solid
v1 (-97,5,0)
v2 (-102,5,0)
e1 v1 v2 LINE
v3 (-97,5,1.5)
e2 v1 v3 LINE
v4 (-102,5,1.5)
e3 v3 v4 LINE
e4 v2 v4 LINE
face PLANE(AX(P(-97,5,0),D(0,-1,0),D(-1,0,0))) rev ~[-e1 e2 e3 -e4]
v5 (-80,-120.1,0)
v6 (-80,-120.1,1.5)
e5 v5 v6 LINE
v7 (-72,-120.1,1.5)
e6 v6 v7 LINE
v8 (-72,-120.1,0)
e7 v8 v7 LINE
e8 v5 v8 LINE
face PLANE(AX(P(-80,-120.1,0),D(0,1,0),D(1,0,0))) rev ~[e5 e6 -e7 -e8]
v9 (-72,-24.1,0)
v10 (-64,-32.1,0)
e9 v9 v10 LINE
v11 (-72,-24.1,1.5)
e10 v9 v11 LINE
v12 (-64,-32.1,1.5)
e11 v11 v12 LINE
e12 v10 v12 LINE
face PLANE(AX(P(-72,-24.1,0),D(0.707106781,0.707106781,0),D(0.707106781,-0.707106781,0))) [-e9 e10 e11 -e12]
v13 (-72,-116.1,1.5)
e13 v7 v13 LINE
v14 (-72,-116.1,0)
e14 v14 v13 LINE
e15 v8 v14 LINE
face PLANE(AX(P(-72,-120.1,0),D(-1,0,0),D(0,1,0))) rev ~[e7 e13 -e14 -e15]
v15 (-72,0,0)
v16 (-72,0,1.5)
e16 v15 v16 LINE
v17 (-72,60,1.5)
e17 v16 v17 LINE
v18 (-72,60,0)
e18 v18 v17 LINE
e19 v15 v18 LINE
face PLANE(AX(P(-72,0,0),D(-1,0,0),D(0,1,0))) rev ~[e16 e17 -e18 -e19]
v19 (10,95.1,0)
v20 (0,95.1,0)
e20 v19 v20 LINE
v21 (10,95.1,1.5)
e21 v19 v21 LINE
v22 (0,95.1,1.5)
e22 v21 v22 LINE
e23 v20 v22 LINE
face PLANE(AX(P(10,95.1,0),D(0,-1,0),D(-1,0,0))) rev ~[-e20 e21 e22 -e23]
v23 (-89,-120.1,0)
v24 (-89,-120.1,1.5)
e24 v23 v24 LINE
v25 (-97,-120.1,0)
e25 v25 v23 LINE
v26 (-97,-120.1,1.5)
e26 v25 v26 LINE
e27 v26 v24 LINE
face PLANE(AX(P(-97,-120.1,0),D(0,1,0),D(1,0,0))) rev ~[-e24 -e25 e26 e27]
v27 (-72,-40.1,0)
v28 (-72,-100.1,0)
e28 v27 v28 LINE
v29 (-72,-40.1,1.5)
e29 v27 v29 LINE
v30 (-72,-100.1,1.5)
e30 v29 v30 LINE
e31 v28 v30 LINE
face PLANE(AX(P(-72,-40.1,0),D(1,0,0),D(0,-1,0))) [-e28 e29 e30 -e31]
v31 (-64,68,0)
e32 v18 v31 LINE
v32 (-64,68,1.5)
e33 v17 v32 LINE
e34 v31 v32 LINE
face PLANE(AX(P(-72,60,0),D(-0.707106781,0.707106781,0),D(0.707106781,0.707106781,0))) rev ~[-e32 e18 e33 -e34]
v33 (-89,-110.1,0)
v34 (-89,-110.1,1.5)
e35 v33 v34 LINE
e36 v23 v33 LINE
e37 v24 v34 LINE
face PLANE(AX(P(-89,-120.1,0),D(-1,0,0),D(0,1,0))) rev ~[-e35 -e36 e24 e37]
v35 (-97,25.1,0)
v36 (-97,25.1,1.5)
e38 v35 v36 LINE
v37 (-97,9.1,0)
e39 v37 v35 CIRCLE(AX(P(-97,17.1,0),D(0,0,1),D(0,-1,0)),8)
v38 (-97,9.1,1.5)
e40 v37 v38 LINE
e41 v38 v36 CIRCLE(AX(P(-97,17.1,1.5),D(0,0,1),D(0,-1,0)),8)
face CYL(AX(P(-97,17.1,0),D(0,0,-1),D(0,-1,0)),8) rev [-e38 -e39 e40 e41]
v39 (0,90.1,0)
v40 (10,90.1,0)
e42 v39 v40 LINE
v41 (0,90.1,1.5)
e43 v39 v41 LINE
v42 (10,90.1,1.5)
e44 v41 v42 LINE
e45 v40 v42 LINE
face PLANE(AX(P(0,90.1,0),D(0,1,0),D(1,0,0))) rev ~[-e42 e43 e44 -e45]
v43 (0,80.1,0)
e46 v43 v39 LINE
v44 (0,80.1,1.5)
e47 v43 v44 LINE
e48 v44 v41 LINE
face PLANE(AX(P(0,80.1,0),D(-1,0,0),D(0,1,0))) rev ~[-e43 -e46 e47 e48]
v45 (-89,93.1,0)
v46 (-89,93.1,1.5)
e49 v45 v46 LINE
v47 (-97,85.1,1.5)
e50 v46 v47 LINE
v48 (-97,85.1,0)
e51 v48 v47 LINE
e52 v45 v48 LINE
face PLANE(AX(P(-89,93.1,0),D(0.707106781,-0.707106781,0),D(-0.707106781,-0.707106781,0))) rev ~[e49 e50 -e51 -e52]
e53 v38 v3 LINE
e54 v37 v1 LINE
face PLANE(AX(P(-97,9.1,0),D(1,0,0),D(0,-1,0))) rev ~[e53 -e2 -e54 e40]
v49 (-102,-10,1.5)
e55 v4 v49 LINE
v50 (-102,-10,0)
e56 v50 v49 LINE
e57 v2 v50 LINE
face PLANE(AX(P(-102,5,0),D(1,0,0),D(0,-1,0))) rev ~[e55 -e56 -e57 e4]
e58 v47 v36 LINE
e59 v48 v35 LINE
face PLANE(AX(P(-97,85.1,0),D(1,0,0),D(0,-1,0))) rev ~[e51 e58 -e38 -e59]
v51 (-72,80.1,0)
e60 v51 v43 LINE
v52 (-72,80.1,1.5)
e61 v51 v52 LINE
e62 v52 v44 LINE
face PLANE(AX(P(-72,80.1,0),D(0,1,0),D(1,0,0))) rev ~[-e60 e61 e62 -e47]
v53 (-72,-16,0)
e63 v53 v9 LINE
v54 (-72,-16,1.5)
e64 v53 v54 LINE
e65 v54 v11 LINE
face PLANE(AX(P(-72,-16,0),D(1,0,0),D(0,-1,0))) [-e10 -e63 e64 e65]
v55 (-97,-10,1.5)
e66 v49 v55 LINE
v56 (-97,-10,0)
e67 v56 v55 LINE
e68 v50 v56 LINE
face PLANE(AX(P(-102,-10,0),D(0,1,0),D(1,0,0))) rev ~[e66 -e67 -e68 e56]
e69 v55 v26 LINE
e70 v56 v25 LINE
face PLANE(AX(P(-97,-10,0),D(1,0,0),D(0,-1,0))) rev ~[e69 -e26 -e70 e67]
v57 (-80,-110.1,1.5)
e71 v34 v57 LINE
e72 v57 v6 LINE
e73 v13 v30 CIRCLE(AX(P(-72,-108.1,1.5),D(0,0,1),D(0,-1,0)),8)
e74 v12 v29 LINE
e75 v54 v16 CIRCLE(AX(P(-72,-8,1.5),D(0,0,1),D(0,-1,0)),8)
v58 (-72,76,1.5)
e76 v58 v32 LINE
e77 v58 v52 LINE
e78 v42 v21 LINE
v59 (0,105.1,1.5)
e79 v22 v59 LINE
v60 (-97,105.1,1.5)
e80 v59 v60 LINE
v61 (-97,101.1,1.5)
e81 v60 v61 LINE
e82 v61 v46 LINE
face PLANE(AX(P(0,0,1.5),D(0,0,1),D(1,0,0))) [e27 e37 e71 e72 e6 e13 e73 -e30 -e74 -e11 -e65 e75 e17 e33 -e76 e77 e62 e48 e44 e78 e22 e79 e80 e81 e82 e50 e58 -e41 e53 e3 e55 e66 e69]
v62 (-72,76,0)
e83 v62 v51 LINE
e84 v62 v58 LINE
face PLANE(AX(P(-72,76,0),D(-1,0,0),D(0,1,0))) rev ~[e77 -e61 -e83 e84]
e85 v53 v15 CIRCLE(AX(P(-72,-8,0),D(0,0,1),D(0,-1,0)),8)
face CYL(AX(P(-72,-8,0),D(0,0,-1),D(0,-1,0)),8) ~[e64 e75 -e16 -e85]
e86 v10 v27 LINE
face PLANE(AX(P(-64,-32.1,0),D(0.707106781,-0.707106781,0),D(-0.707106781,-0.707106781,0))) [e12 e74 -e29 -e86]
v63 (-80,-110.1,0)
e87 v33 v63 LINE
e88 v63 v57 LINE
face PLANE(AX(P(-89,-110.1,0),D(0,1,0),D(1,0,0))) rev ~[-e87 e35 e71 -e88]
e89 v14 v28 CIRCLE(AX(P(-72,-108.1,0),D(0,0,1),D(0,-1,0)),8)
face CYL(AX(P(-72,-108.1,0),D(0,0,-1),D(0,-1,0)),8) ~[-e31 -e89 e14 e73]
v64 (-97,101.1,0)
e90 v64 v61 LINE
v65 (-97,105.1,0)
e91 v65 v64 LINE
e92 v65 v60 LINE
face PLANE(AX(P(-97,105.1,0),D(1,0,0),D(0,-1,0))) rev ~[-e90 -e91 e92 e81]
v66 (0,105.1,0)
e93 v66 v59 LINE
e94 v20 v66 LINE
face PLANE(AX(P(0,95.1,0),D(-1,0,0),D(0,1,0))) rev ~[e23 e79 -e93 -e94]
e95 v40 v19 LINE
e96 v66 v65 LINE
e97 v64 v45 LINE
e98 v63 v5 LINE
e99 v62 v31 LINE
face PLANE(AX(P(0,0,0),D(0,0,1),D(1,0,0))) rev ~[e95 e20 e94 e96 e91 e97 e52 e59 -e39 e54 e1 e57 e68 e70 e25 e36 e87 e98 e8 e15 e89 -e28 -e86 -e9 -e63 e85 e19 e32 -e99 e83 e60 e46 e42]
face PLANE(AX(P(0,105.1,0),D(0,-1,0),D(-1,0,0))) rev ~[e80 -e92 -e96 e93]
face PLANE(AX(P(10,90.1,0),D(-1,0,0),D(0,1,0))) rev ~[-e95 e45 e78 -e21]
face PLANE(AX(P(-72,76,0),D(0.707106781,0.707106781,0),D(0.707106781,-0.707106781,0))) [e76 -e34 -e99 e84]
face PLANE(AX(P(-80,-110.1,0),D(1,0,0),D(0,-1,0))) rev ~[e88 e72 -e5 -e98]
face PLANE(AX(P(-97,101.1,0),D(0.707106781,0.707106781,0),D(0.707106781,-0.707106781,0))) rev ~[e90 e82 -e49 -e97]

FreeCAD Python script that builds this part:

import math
import FreeCAD as App
import Part
import Sketcher

V = App.Vector
Q = App.Units.Quantity

doc = App.newDocument("Part")
body = doc.addObject("PartDesign::Body", "Body")

sketch1 = body.newObject("Sketcher::SketchObject", "Sketch")
sketch1.AttachmentSupport = (doc.getObject("XY_Plane"), [""])
sketch1.MapMode = "FlatFace"
sketch1.addGeometry(Part.LineSegment(V(-64, 68, 0), V(-72, 76, 0)), False)
sketch1.addGeometry(Part.LineSegment(V(-72, 76, 0), V(-72, 80.1, 0)), False)
sketch1.addGeometry(Part.LineSegment(V(-72, 80.1, 0), V(0, 80.1, 0)), False)
sketch1.addGeometry(Part.LineSegment(V(0, 80.1, 0), V(0, 90.1, 0)), False)
sketch1.addGeometry(Part.LineSegment(V(0, 90.1, 0), V(10, 90.1, 0)), False)
sketch1.addGeometry(Part.LineSegment(V(10, 90.1, 0), V(10, 95.1, 0)), False)
sketch1.addGeometry(Part.LineSegment(V(10, 95.1, 0), V(0, 95.1, 0)), False)
sketch1.addGeometry(Part.LineSegment(V(0, 95.1, 0), V(0, 105.1, 0)), False)
sketch1.addGeometry(Part.LineSegment(V(0, 105.1, 0), V(-97, 105.1, 0)), False)
sketch1.addGeometry(Part.LineSegment(V(-97, 105.1, 0), V(-97, 101.1, 0)), False)
sketch1.addGeometry(Part.LineSegment(V(-97, 101.1, 0), V(-89, 93.1, 0)), False)
sketch1.addGeometry(Part.LineSegment(V(-89, 93.1, 0), V(-97, 85.1, 0)), False)
sketch1.addGeometry(Part.LineSegment(V(-97, 85.1, 0), V(-97, 25.1, 0)), False)
sketch1.addGeometry(Part.ArcOfCircle(Part.Circle(V(-97, 17.1, 0), V(0, 0, 1), 8), math.radians(-90), math.radians(90)), False)
sketch1.addGeometry(Part.LineSegment(V(-97, 9.1, 0), V(-97, 5, 0)), False)
sketch1.addGeometry(Part.LineSegment(V(-97, 5, 0), V(-102, 5, 0)), False)
sketch1.addGeometry(Part.LineSegment(V(-102, 5, 0), V(-102, -10, 0)), False)
sketch1.addGeometry(Part.LineSegment(V(-102, -10, 0), V(-97, -10, 0)), False)
sketch1.addGeometry(Part.LineSegment(V(-97, -10, 0), V(-97, -120.1, 0)), False)
sketch1.addGeometry(Part.LineSegment(V(-97, -120.1, 0), V(-89, -120.1, 0)), False)
sketch1.addGeometry(Part.LineSegment(V(-89, -120.1, 0), V(-89, -110.1, 0)), False)
sketch1.addGeometry(Part.LineSegment(V(-89, -110.1, 0), V(-80, -110.1, 0)), False)
sketch1.addGeometry(Part.LineSegment(V(-80, -110.1, 0), V(-80, -120.1, 0)), False)
sketch1.addGeometry(Part.LineSegment(V(-80, -120.1, 0), V(-72, -120.1, 0)), False)
sketch1.addGeometry(Part.LineSegment(V(-72, -120.1, 0), V(-72, -116.1, 0)), False)
sketch1.addGeometry(Part.ArcOfCircle(Part.Circle(V(-72, -108.1, 0), V(0, 0, 1), 8), math.radians(-90), math.radians(90)), False)
sketch1.addGeometry(Part.LineSegment(V(-72, -100.1, 0), V(-72, -40.1, 0)), False)
sketch1.addGeometry(Part.LineSegment(V(-72, -40.1, 0), V(-64, -32.1, 0)), False)
sketch1.addGeometry(Part.LineSegment(V(-64, -32.1, 0), V(-72, -24.1, 0)), False)
sketch1.addGeometry(Part.LineSegment(V(-72, -24.1, 0), V(-72, -16, 0)), False)
sketch1.addGeometry(Part.ArcOfCircle(Part.Circle(V(-72, -8, 0), V(0, 0, 1), 8), math.radians(-90), math.radians(90)), False)
sketch1.addGeometry(Part.LineSegment(V(-72, 0, 0), V(-72, 60, 0)), False)
sketch1.addGeometry(Part.LineSegment(V(-72, 60, 0), V(-64, 68, 0)), False)
sketch1.addConstraint(Sketcher.Constraint("Coincident", 0, 2, 1, 1))
sketch1.addConstraint(Sketcher.Constraint("Coincident", 1, 2, 2, 1))
sketch1.addConstraint(Sketcher.Constraint("Coincident", 2, 2, 3, 1))
sketch1.addConstraint(Sketcher.Constraint("Coincident", 3, 2, 4, 1))
sketch1.addConstraint(Sketcher.Constraint("Coincident", 4, 2, 5, 1))
sketch1.addConstraint(Sketcher.Constraint("Coincident", 5, 2, 6, 1))
sketch1.addConstraint(Sketcher.Constraint("Coincident", 6, 2, 7, 1))
sketch1.addConstraint(Sketcher.Constraint("Coincident", 7, 2, 8, 1))
sketch1.addConstraint(Sketcher.Constraint("Coincident", 8, 2, 9, 1))
sketch1.addConstraint(Sketcher.Constraint("Coincident", 9, 2, 10, 1))
sketch1.addConstraint(Sketcher.Constraint("Coincident", 10, 2, 11, 1))
sketch1.addConstraint(Sketcher.Constraint("Coincident", 11, 2, 12, 1))
sketch1.addConstraint(Sketcher.Constraint("Coincident", 12, 2, 13, 2))
sketch1.addConstraint(Sketcher.Constraint("Coincident", 13, 1, 14, 1))
sketch1.addConstraint(Sketcher.Constraint("Coincident", 14, 2, 15, 1))
sketch1.addConstraint(Sketcher.Constraint("Coincident", 15, 2, 16, 1))
sketch1.addConstraint(Sketcher.Constraint("Coincident", 16, 2, 17, 1))
sketch1.addConstraint(Sketcher.Constraint("Coincident", 17, 2, 18, 1))
sketch1.addConstraint(Sketcher.Constraint("Coincident", 18, 2, 19, 1))
sketch1.addConstraint(Sketcher.Constraint("Coincident", 19, 2, 20, 1))
sketch1.addConstraint(Sketcher.Constraint("Coincident", 20, 2, 21, 1))
sketch1.addConstraint(Sketcher.Constraint("Coincident", 21, 2, 22, 1))
sketch1.addConstraint(Sketcher.Constraint("Coincident", 22, 2, 23, 1))
sketch1.addConstraint(Sketcher.Constraint("Coincident", 23, 2, 24, 1))
sketch1.addConstraint(Sketcher.Constraint("Coincident", 24, 2, 25, 1))
sketch1.addConstraint(Sketcher.Constraint("Coincident", 25, 2, 26, 1))
sketch1.addConstraint(Sketcher.Constraint("Coincident", 26, 2, 27, 1))
sketch1.addConstraint(Sketcher.Constraint("Coincident", 27, 2, 28, 1))
sketch1.addConstraint(Sketcher.Constraint("Coincident", 28, 2, 29, 1))
sketch1.addConstraint(Sketcher.Constraint("Coincident", 29, 2, 30, 1))
sketch1.addConstraint(Sketcher.Constraint("Coincident", 30, 2, 31, 1))
sketch1.addConstraint(Sketcher.Constraint("Coincident", 31, 2, 32, 1))
sketch1.addConstraint(Sketcher.Constraint("Coincident", 32, 2, 0, 1))
sketch1.addConstraint(Sketcher.Constraint("Vertical", 1))
sketch1.addConstraint(Sketcher.Constraint("Horizontal", 2))
sketch1.addConstraint(Sketcher.Constraint("Vertical", 3))
sketch1.addConstraint(Sketcher.Constraint("Horizontal", 4))
sketch1.addConstraint(Sketcher.Constraint("Vertical", 5))
sketch1.addConstraint(Sketcher.Constraint("Horizontal", 6))
sketch1.addConstraint(Sketcher.Constraint("Vertical", 7))
sketch1.addConstraint(Sketcher.Constraint("Horizontal", 8))
sketch1.addConstraint(Sketcher.Constraint("Vertical", 9))
sketch1.addConstraint(Sketcher.Constraint("Vertical", 12))
sketch1.addConstraint(Sketcher.Constraint("Vertical", 14))
sketch1.addConstraint(Sketcher.Constraint("Horizontal", 15))
sketch1.addConstraint(Sketcher.Constraint("Vertical", 16))
sketch1.addConstraint(Sketcher.Constraint("Horizontal", 17))
sketch1.addConstraint(Sketcher.Constraint("Vertical", 18))
sketch1.addConstraint(Sketcher.Constraint("Horizontal", 19))
sketch1.addConstraint(Sketcher.Constraint("Vertical", 20))
sketch1.addConstraint(Sketcher.Constraint("Horizontal", 21))
sketch1.addConstraint(Sketcher.Constraint("Vertical", 22))
sketch1.addConstraint(Sketcher.Constraint("Horizontal", 23))
sketch1.addConstraint(Sketcher.Constraint("Vertical", 24))
sketch1.addConstraint(Sketcher.Constraint("Vertical", 26))
sketch1.addConstraint(Sketcher.Constraint("Vertical", 29))
sketch1.addConstraint(Sketcher.Constraint("Vertical", 31))
sketch1.addConstraint(Sketcher.Constraint("Equal", 13, 25))
sketch1.addConstraint(Sketcher.Constraint("Equal", 25, 30))
sketch1.addConstraint(Sketcher.Constraint("PointOnObject", 2, 2, -2))
sketch1.addConstraint(Sketcher.Constraint("PointOnObject", 6, 2, -2))
sketch1.addConstraint(Sketcher.Constraint("PointOnObject", 30, 2, -1))
sketch1.addConstraint(Sketcher.Constraint("Parallel", 0, 10))
sketch1.addConstraint(Sketcher.Constraint("Perpendicular", 10, 11))
sketch1.addConstraint(Sketcher.Constraint("Parallel", 11, 27))
sketch1.addConstraint(Sketcher.Constraint("Perpendicular", 27, 28))
sketch1.addConstraint(Sketcher.Constraint("Perpendicular", 28, 32))
sketch1.addConstraint(Sketcher.Constraint("Horizontal", 19, 2, 22, 2))
sketch1.addConstraint(Sketcher.Constraint("Vertical", 25, 3, 30, 3))
sketch1.addConstraint(Sketcher.Constraint("Vertical", 30, 3, 0, 2))
sketch1.addConstraint(Sketcher.Constraint("Vertical", 13, 3, 8, 2))
sketch1.addConstraint(Sketcher.Constraint("Vertical", 9, 2, 11, 2))
sketch1.addConstraint(Sketcher.Constraint("Vertical", 12, 2, 13, 1))
sketch1.addConstraint(Sketcher.Constraint("Vertical", 14, 2, 17, 2))
sketch1.addConstraint(Sketcher.Constraint("Vertical", 10, 2, 19, 2))
sketch1.addConstraint(Sketcher.Constraint("Vertical", 1, 2, 23, 2))
sketch1.addConstraint(Sketcher.Constraint("Vertical", 24, 2, 25, 2))
sketch1.addConstraint(Sketcher.Constraint("Vertical", 26, 2, 28, 2))
sketch1.addConstraint(Sketcher.Constraint("Vertical", 29, 2, 30, 2))
sketch1.addConstraint(Sketcher.Constraint("Vertical", 27, 2, 32, 2))
sketch1.addConstraint(Sketcher.Constraint("Equal", 19, 23))
sketch1.addConstraint(Sketcher.Constraint("Equal", 6, 3))
sketch1.addConstraint(Sketcher.Constraint("Equal", 17, 5))
sketch1.addConstraint(Sketcher.Constraint("Equal", 3, 7))
sketch1.addConstraint(Sketcher.Constraint("Equal", 1, 14))
sketch1.addConstraint(Sketcher.Constraint("Equal", 7, 20))
sketch1.addConstraint(Sketcher.Constraint("Equal", 9, 24))
sketch1.addConstraint(Sketcher.Constraint("Equal", 12, 26))
sketch1.addConstraint(Sketcher.Constraint("Equal", 26, 31))
sketch1.addConstraint(Sketcher.Constraint("Equal", 0, 10))
sketch1.addConstraint(Sketcher.Constraint("Equal", 10, 11))
sketch1.addConstraint(Sketcher.Constraint("Radius", 13, Q("8 mm")))
sketch1.addConstraint(Sketcher.Constraint("DistanceX", 2, 1, 2, 2, Q("72 mm")))
sketch1.addConstraint(Sketcher.Constraint("DistanceX", 4, 1, 4, 2, Q("10 mm")))
sketch1.addConstraint(Sketcher.Constraint("DistanceX", 8, 2, 8, 1, Q("97 mm")))
sketch1.addConstraint(Sketcher.Constraint("DistanceX", 15, 2, 15, 1, Q("5 mm")))
sketch1.addConstraint(Sketcher.Constraint("DistanceX", 19, 1, 19, 2, Q("8 mm")))
sketch1.addConstraint(Sketcher.Constraint("DistanceY", 9, 2, 9, 1, Q("4 mm")))
sketch1.addConstraint(Sketcher.Constraint("DistanceY", 16, 2, 16, 1, Q("15 mm")))
sketch1.addConstraint(Sketcher.Constraint("DistanceY", 1, 1, 1, 2, Q("4.1 mm")))
sketch1.addConstraint(Sketcher.Constraint("DistanceY", -1, 1, 0, 2, Q("76 mm")))
sketch1.addConstraint(Sketcher.Constraint("DistanceY", 28, 2, -1, 1, Q("24.1 mm")))
pad1 = body.newObject("PartDesign::Pad", "Pad")
pad1.Profile = sketch1
pad1.Length = 1.5

doc.recompute()
